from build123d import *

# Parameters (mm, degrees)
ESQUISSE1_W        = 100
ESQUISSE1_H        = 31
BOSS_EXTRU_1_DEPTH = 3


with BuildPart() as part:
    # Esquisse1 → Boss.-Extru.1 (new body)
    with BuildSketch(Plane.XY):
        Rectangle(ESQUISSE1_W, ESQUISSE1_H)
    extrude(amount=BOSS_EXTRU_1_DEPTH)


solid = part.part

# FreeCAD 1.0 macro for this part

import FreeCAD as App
import Part
import Sketcher
from FreeCAD import Vector


def add_polygon(sketch, points):
    """Adds a closed chain of lines whose ends are joined by coincident constraints."""
    first, n = sketch.GeometryCount, len(points)
    for a, b in zip(points, points[1:] + points[:1]):
        sketch.addGeometry(Part.LineSegment(App.Vector(*a, 0), App.Vector(*b, 0)), False)
    for i in range(n):
        sketch.addConstraint(Sketcher.Constraint("Coincident", first + i, 2, first + (i + 1) % n, 1))

doc = App.newDocument("Part")
body = doc.addObject("PartDesign::Body", "Body")

# Sketch on XY plane
sketch1 = doc.addObject("Sketcher::SketchObject", "Sketch")
body.addObject(sketch1)
sketch1.AttachmentSupport = (doc.XY_Plane, [""])
sketch1.MapMode = "FlatFace"
add_polygon(sketch1, [(-50, 16), (-50, -16), (50, -16), (50, 16)])  # lines 0-3
sketch1.addConstraint(Sketcher.Constraint("Vertical", 0))
sketch1.addConstraint(Sketcher.Constraint("Horizontal", 1))
sketch1.addConstraint(Sketcher.Constraint("Vertical", 2))
sketch1.addConstraint(Sketcher.Constraint("Horizontal", 3))
sketch1.addConstraint(Sketcher.Constraint("Symmetric", 0, 2, 2, 2, -1, 1))
sketch1.addConstraint(Sketcher.Constraint("DistanceX", 1, 1, 1, 2, 100.0))
sketch1.addConstraint(Sketcher.Constraint("DistanceY", 0, 2, 0, 1, 31.0))
pad1 = doc.addObject("PartDesign::Pad", "Pad")
body.addObject(pad1)
pad1.Profile = sketch1
pad1.Length = 3

doc.recompute()
